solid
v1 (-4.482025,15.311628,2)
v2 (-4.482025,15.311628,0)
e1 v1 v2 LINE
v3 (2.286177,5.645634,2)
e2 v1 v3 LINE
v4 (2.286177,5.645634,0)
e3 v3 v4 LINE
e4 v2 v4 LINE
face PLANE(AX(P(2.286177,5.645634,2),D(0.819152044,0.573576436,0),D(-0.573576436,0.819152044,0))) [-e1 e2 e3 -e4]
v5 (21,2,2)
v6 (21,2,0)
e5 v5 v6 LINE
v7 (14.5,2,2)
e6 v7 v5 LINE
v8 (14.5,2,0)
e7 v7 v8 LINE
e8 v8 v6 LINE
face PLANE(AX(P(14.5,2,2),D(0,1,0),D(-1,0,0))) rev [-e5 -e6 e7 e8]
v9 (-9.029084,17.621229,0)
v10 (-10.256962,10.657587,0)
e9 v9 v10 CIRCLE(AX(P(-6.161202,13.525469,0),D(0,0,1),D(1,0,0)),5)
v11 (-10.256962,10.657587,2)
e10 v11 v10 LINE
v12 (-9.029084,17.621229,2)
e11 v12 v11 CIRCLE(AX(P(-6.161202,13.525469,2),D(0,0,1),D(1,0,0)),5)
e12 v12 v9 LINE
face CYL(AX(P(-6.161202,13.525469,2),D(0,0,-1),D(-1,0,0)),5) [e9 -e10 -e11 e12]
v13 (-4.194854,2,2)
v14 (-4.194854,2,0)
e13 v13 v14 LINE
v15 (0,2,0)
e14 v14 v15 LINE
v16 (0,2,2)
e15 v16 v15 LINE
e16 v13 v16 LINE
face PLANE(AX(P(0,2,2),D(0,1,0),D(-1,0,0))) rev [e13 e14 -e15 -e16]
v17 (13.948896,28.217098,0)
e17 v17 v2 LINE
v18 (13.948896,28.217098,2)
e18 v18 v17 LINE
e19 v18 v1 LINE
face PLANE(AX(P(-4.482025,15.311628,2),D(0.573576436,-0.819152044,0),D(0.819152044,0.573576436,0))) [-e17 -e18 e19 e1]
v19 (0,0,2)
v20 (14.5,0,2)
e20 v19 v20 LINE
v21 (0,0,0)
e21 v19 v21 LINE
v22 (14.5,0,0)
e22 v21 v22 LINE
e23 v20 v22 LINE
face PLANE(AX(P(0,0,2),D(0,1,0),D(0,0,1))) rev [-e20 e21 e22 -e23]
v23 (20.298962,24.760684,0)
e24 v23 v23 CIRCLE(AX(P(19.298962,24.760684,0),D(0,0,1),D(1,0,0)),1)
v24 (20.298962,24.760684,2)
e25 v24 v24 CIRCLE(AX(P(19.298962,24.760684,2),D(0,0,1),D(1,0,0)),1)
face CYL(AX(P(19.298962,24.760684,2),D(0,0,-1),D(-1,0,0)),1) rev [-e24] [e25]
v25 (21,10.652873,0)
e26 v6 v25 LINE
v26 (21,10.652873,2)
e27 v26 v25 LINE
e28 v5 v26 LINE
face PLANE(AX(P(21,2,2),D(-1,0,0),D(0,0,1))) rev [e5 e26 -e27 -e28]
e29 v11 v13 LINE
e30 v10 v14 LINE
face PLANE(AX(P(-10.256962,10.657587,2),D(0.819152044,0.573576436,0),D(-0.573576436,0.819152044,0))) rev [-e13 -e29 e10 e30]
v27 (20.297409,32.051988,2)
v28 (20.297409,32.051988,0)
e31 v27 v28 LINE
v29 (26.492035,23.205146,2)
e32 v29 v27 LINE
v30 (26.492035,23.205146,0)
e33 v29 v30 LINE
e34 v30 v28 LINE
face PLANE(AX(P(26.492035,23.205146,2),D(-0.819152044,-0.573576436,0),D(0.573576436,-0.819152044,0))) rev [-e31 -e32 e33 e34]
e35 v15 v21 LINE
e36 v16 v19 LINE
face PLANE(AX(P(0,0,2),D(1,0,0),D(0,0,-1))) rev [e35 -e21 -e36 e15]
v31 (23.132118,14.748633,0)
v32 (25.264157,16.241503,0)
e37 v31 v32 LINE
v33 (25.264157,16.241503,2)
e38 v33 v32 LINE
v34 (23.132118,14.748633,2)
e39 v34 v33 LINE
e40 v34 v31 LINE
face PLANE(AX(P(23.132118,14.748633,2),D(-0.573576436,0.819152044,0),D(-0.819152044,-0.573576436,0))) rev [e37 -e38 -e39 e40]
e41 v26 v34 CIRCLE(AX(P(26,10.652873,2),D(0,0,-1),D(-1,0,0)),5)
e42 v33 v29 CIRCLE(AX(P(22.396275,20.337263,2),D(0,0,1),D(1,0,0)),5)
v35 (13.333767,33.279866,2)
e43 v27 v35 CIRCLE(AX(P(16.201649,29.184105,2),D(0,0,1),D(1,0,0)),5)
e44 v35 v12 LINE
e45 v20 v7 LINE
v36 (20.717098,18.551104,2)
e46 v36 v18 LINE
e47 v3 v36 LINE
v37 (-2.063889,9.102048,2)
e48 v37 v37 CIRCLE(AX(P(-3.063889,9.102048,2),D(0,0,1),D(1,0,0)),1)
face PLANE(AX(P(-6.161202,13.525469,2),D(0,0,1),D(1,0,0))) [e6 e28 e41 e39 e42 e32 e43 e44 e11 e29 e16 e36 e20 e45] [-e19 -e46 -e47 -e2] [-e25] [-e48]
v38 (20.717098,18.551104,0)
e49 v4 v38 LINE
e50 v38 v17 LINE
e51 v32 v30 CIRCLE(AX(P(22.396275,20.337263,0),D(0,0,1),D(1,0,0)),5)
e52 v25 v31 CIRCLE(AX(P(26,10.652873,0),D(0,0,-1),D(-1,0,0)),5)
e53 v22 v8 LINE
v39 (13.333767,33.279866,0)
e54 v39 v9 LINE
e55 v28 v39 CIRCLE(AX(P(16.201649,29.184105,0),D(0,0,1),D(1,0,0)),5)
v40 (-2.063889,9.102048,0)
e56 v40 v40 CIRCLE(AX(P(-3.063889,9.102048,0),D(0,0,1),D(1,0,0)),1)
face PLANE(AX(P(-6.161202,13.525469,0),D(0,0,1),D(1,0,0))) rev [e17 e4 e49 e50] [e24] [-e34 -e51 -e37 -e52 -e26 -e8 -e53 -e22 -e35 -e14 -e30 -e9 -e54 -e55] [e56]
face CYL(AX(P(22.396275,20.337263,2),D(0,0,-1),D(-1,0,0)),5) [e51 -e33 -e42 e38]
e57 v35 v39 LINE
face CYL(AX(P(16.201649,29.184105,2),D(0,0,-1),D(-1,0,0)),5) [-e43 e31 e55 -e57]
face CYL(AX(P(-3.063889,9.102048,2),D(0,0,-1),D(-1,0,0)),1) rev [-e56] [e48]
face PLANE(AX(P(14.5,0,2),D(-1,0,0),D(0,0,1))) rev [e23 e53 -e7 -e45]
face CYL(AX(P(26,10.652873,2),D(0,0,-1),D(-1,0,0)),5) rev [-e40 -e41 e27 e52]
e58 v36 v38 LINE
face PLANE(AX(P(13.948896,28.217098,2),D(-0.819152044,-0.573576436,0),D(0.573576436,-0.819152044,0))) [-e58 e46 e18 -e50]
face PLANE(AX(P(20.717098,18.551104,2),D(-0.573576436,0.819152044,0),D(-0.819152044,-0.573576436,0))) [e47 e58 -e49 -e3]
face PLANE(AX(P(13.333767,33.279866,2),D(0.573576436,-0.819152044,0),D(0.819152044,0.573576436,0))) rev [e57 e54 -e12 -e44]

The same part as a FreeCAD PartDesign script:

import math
import FreeCAD as App
import Part
import Sketcher

V = App.Vector
Q = App.Units.Quantity

doc = App.newDocument("Part")
body = doc.addObject("PartDesign::Body", "Body")

sketch1 = doc.addObject("Sketcher::SketchObject", "Sketch")
body.addObject(sketch1)
sketch1.AttachmentSupport = (doc.XY_Plane, [""])
sketch1.MapMode = "FlatFace"
sketch1.addGeometry(Part.LineSegment(V(0, 0, 0), V(14.5, 0, 0)), False)
sketch1.addGeometry(Part.LineSegment(V(14.5, 0, 0), V(14.5, 2, 0)), False)
sketch1.addGeometry(Part.LineSegment(V(14.5, 2, 0), V(21, 2, 0)), False)
sketch1.addGeometry(Part.LineSegment(V(21, 2, 0), V(21, 10.7, 0)), False)
sketch1.addGeometry(Part.ArcOfCircle(Part.Circle(V(26, 10.7, 0), V(0, 0, 1), 5), math.radians(125), math.radians(180)), False)
sketch1.addGeometry(Part.LineSegment(V(23.1, 14.7, 0), V(25.3, 16.2, 0)), False)
sketch1.addGeometry(Part.ArcOfCircle(Part.Circle(V(22.4, 20.3, 0), V(0, 0, 1), 5), math.radians(-55), math.radians(35)), False)
sketch1.addGeometry(Part.LineSegment(V(26.5, 23.2, 0), V(20.3, 32.1, 0)), False)
sketch1.addGeometry(Part.ArcOfCircle(Part.Circle(V(16.2, 29.2, 0), V(0, 0, 1), 5), math.radians(35), math.radians(125)), False)
sketch1.addGeometry(Part.LineSegment(V(13.3, 33.3, 0), V(-9, 17.6, 0)), False)
sketch1.addGeometry(Part.ArcOfCircle(Part.Circle(V(-6.2, 13.5, 0), V(0, 0, 1), 5), math.radians(125), math.radians(215)), False)
sketch1.addGeometry(Part.LineSegment(V(-10.3, 10.7, 0), V(-4.2, 2, 0)), False)
sketch1.addGeometry(Part.LineSegment(V(-4.2, 2, 0), V(0, 2, 0)), False)
sketch1.addGeometry(Part.LineSegment(V(0, 2, 0), V(0, 0, 0)), False)
sketch1.addGeometry(Part.Circle(V(-3.1, 9.1, 0), V(0, 0, 1), 1), False)
sketch1.addGeometry(Part.LineSegment(V(2.3, 5.6, 0), V(-4.5, 15.3, 0)), False)
sketch1.addGeometry(Part.LineSegment(V(-4.5, 15.3, 0), V(13.9, 28.2, 0)), False)
sketch1.addGeometry(Part.LineSegment(V(13.9, 28.2, 0), V(20.7, 18.6, 0)), False)
sketch1.addGeometry(Part.LineSegment(V(20.7, 18.6, 0), V(2.3, 5.6, 0)), False)
sketch1.addGeometry(Part.Circle(V(19.3, 24.8, 0), V(0, 0, 1), 1), False)
sketch1.addConstraint(Sketcher.Constraint("Coincident", 0, 2, 1, 1))
sketch1.addConstraint(Sketcher.Constraint("Coincident", 1, 2, 2, 1))
sketch1.addConstraint(Sketcher.Constraint("Coincident", 2, 2, 3, 1))
sketch1.addConstraint(Sketcher.Constraint("Tangent", 3, 2, 4, 2))
sketch1.addConstraint(Sketcher.Constraint("Tangent", 4, 1, 5, 1))
sketch1.addConstraint(Sketcher.Constraint("Tangent", 5, 2, 6, 1))
sketch1.addConstraint(Sketcher.Constraint("Tangent", 6, 2, 7, 1))
sketch1.addConstraint(Sketcher.Constraint("Tangent", 7, 2, 8, 1))
sketch1.addConstraint(Sketcher.Constraint("Tangent", 8, 2, 9, 1))
sketch1.addConstraint(Sketcher.Constraint("Tangent", 9, 2, 10, 1))
sketch1.addConstraint(Sketcher.Constraint("Tangent", 10, 2, 11, 1))
sketch1.addConstraint(Sketcher.Constraint("Coincident", 11, 2, 12, 1))
sketch1.addConstraint(Sketcher.Constraint("Coincident", 12, 2, 13, 1))
sketch1.addConstraint(Sketcher.Constraint("Coincident", 13, 2, 0, 1))
sketch1.addConstraint(Sketcher.Constraint("Coincident", 15, 2, 16, 1))
sketch1.addConstraint(Sketcher.Constraint("Coincident", 16, 2, 17, 1))
sketch1.addConstraint(Sketcher.Constraint("Coincident", 17, 2, 18, 1))
sketch1.addConstraint(Sketcher.Constraint("Coincident", 18, 2, 15, 1))
sketch1.addConstraint(Sketcher.Constraint("Horizontal", 0))
sketch1.addConstraint(Sketcher.Constraint("Vertical", 1))
sketch1.addConstraint(Sketcher.Constraint("Horizontal", 2))
sketch1.addConstraint(Sketcher.Constraint("Vertical", 3))
sketch1.addConstraint(Sketcher.Constraint("Horizontal", 12))
sketch1.addConstraint(Sketcher.Constraint("Vertical", 13))
sketch1.addConstraint(Sketcher.Constraint("Coincident", 13, 2, -1, 1))
sketch1.addConstraint(Sketcher.Constraint("Equal", 4, 6))
sketch1.addConstraint(Sketcher.Constraint("Equal", 6, 8))
sketch1.addConstraint(Sketcher.Constraint("Equal", 8, 10))
sketch1.addConstraint(Sketcher.Constraint("Equal", 14, 19))
sketch1.addConstraint(Sketcher.Constraint("Perpendicular", 5, 7))
sketch1.addConstraint(Sketcher.Constraint("Perpendicular", 7, 9))
sketch1.addConstraint(Sketcher.Constraint("Perpendicular", 9, 11))
sketch1.addConstraint(Sketcher.Constraint("Parallel", 11, 15))
sketch1.addConstraint(Sketcher.Constraint("Perpendicular", 15, 16))
sketch1.addConstraint(Sketcher.Constraint("Perpendicular", 16, 17))
sketch1.addConstraint(Sketcher.Constraint("Perpendicular", 17, 18))
sketch1.addConstraint(Sketcher.Constraint("Horizontal", 2, 2, 11, 2))
sketch1.addConstraint(Sketcher.Constraint("Diameter", 14, Q("2 mm")))
sketch1.addConstraint(Sketcher.Constraint("Radius", 4, Q("5 mm")))
sketch1.addConstraint(Sketcher.Constraint("DistanceY", 1, 1, 1, 2, Q("2 mm")))
sketch1.addConstraint(Sketcher.Constraint("Angle", 5, Q("35 deg")))
sketch1.addConstraint(Sketcher.Constraint("DistanceX", 0, 1, 0, 2, Q("14.5 mm")))
sketch1.addConstraint(Sketcher.Constraint("DistanceX", 2, 1, 2, 2, Q("6.5 mm")))
sketch1.addConstraint(Sketcher.Constraint("Distance", 7, Q("10.8 mm")))
sketch1.addConstraint(Sketcher.Constraint("Distance", 9, Q("27.3 mm")))
sketch1.addConstraint(Sketcher.Constraint("Distance", 15, Q("11.8 mm")))
sketch1.addConstraint(Sketcher.Constraint("Distance", 16, Q("22.5 mm")))
sketch1.addConstraint(Sketcher.Constraint("DistanceX", 10, 3, -1, 1, Q("6.161202 mm")))
sketch1.addConstraint(Sketcher.Constraint("DistanceY", -1, 1, 16, 2, Q("28.217098 mm")))
sketch1.addConstraint(Sketcher.Constraint("DistanceX", -1, 1, 17, 2, Q("20.717098 mm")))
sketch1.addConstraint(Sketcher.Constraint("DistanceY", 15, 2, 9, 2, Q("2.309601 mm")))
sketch1.addConstraint(Sketcher.Constraint("DistanceX", 14, 3, -1, 1, Q("3.063889 mm")))
sketch1.addConstraint(Sketcher.Constraint("DistanceX", -1, 1, 19, 3, Q("19.298962 mm")))
sketch1.addConstraint(Sketcher.Constraint("DistanceY", 14, 3, 10, 3, Q("4.423421 mm")))
sketch1.addConstraint(Sketcher.Constraint("DistanceY", 19, 3, 8, 3, Q("4.423421 mm")))
pad1 = doc.addObject("PartDesign::Pad", "Pad")
body.addObject(pad1)
pad1.Profile = sketch1
pad1.Length = 2

doc.recompute()
